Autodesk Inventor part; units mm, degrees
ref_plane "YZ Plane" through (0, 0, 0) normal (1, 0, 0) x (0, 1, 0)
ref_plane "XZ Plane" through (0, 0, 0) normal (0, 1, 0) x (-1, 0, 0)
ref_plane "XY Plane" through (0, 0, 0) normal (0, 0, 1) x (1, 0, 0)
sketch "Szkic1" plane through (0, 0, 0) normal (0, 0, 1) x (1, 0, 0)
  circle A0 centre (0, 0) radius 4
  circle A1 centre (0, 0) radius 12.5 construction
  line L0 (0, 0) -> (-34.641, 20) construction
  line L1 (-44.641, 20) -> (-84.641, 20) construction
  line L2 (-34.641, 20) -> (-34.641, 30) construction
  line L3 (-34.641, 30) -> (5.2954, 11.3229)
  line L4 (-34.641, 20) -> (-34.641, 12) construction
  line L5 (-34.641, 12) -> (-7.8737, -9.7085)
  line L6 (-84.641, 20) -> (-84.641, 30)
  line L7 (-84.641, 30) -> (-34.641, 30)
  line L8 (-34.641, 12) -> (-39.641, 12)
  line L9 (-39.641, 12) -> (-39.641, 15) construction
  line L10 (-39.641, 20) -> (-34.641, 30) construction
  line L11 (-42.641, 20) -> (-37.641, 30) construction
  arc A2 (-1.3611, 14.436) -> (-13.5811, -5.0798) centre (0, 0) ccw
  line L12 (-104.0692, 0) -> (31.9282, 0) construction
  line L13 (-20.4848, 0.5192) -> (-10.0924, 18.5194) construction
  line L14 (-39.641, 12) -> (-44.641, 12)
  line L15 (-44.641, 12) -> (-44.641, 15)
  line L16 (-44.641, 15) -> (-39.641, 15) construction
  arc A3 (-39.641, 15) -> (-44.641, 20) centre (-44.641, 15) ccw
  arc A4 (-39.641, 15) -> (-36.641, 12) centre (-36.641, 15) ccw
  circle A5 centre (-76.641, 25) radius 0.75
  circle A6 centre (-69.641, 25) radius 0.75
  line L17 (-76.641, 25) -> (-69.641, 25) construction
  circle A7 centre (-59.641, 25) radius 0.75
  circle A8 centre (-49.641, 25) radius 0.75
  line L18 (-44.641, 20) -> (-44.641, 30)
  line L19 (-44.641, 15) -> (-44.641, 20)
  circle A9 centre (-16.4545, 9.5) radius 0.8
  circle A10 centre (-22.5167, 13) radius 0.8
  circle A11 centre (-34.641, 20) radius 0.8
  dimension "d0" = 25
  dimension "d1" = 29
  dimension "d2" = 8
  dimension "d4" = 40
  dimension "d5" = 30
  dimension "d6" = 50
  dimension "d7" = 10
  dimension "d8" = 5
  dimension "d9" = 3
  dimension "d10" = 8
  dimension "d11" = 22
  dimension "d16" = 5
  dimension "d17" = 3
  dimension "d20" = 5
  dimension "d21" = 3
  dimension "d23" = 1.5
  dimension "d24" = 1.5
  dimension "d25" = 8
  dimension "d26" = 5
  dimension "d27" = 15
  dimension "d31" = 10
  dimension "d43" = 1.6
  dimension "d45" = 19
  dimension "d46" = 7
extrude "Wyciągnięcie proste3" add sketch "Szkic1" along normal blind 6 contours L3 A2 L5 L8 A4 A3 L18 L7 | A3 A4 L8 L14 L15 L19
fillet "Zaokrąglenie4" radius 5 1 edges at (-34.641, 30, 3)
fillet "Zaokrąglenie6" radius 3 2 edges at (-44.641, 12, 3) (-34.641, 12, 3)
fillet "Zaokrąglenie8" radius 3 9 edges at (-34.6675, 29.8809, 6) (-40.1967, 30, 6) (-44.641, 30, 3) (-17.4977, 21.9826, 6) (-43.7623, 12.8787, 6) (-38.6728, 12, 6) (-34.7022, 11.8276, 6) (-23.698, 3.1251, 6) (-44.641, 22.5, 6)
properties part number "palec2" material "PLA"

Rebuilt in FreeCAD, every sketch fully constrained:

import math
import FreeCAD as App
import Part
import Sketcher

V = App.Vector
Q = App.Units.Quantity


def edges_at(feature, points):
    """Names of the edges that pass closest to the given points."""
    edges = feature.Shape.Edges
    near = lambda p: min(range(len(edges)), key=lambda i: edges[i].distToShape(Part.Vertex(*p))[0])
    return sorted({f"Edge{near(p) + 1}" for p in points})

doc = App.newDocument("Part")
params = doc.addObject("Spreadsheet::Sheet", "Params")
for row, (alias, value) in enumerate([
    ("sketch1_diameter", "1.6 mm"),
    ("sketch1_radius", "14.5 mm"),
    ("sketch1_width", "10 mm"),
    ("pad1_length", "6 mm"),
    ("fillet_radius", "5 mm"),
    ("fillet2_radius", "3 mm"),
    ("fillet3_radius", "3 mm"),
], start=1):
    params.set(f"A{row}", alias)
    params.set(f"B{row}", "=" + value)
    params.setAlias(f"B{row}", alias)

body = doc.addObject("PartDesign::Body", "Body")

sketch1 = body.newObject("Sketcher::SketchObject", "Sketch")
sketch1.AttachmentSupport = (doc.getObject("XY_Plane"), [""])
sketch1.MapMode = "FlatFace"
sketch1.addGeometry(Part.LineSegment(V(-1.4, 14.4, 0), V(-34.6, 30, 0)), False)
sketch1.addGeometry(Part.LineSegment(V(-34.6, 30, 0), V(-44.6, 30, 0)), False)
sketch1.addGeometry(Part.LineSegment(V(-44.6, 30, 0), V(-44.6, 12, 0)), False)
sketch1.addGeometry(Part.LineSegment(V(-44.6, 12, 0), V(-34.6, 12, 0)), False)
sketch1.addGeometry(Part.LineSegment(V(-34.6, 12, 0), V(-13.6, -5.1, 0)), False)
sketch1.addGeometry(Part.ArcOfCircle(Part.Circle(V(0, 0, 0), V(0, 0, 1), 14.5), math.radians(95), math.radians(201)), False)
sketch1.addGeometry(Part.Circle(V(-16.5, 9.5, 0), V(0, 0, 1), 0.8), False)
sketch1.addGeometry(Part.Circle(V(-22.5, 13, 0), V(0, 0, 1), 0.8), False)
sketch1.addGeometry(Part.Circle(V(-34.6, 20, 0), V(0, 0, 1), 0.8), False)
sketch1.addConstraint(Sketcher.Constraint("Coincident", 0, 2, 1, 1))
sketch1.addConstraint(Sketcher.Constraint("Coincident", 1, 2, 2, 1))
sketch1.addConstraint(Sketcher.Constraint("Coincident", 2, 2, 3, 1))
sketch1.addConstraint(Sketcher.Constraint("Coincident", 3, 2, 4, 1))
sketch1.addConstraint(Sketcher.Constraint("Coincident", 4, 2, 5, 2))
sketch1.addConstraint(Sketcher.Constraint("Coincident", 5, 1, 0, 1))
sketch1.addConstraint(Sketcher.Constraint("Horizontal", 1))
sketch1.addConstraint(Sketcher.Constraint("Vertical", 2))
sketch1.addConstraint(Sketcher.Constraint("Horizontal", 3))
sketch1.addConstraint(Sketcher.Constraint("Coincident", 5, 3, -1, 1))
sketch1.addConstraint(Sketcher.Constraint("Equal", 6, 7))
sketch1.addConstraint(Sketcher.Constraint("Equal", 7, 8))
sketch1.addConstraint(Sketcher.Constraint("Vertical", 8, 3, 0, 2))
sketch1.addConstraint(Sketcher.Constraint("Vertical", 0, 2, 3, 2))
sketch1.addConstraint(Sketcher.Constraint("Diameter", 6, Q("1.6 mm")))
sketch1.addConstraint(Sketcher.Constraint("Radius", 5, Q("14.5 mm")))
sketch1.addConstraint(Sketcher.Constraint("DistanceX", 1, 2, 1, 1, Q("10 mm")))
sketch1.addConstraint(Sketcher.Constraint("DistanceY", -1, 1, 0, 2, Q("30 mm")))
sketch1.addConstraint(Sketcher.Constraint("DistanceY", 7, 3, 8, 3, Q("7 mm")))
sketch1.addConstraint(Sketcher.Constraint("DistanceY", 8, 3, 0, 2, Q("10 mm")))
sketch1.addConstraint(Sketcher.Constraint("DistanceY", 2, 2, 8, 3, Q("8 mm")))
sketch1.addConstraint(Sketcher.Constraint("DistanceY", -1, 1, 6, 3, Q("9.5 mm")))
sketch1.addConstraint(Sketcher.Constraint("DistanceX", 3, 2, 4, 2, Q("21.06 mm")))
sketch1.addConstraint(Sketcher.Constraint("DistanceX", 4, 2, 5, 1, Q("12.22 mm")))
sketch1.addConstraint(Sketcher.Constraint("DistanceX", 8, 3, -1, 1, Q("34.641 mm")))
sketch1.addConstraint(Sketcher.Constraint("DistanceX", 6, 3, -1, 1, Q("16.4545 mm")))
sketch1.addConstraint(Sketcher.Constraint("DistanceX", 7, 3, -1, 1, Q("22.5167 mm")))
sketch1.setExpression("Constraints[14]", "Params.sketch1_diameter")
sketch1.setExpression("Constraints[15]", "Params.sketch1_radius")
sketch1.setExpression("Constraints[16]", "Params.sketch1_width")
pad1 = body.newObject("PartDesign::Pad", "Pad")
pad1.Profile = sketch1
pad1.setExpression("Length", "Params.pad1_length")
doc.recompute()

fillet = body.newObject("PartDesign::Fillet", "Fillet")
fillet.Base = (pad1, edges_at(pad1, [(-34.641, 30, 3)]))
fillet.setExpression("Radius", "Params.fillet_radius")
doc.recompute()

fillet2 = body.newObject("PartDesign::Fillet", "Fillet001")
fillet2.Base = (fillet, edges_at(fillet, [(-44.641, 12, 3), (-34.641, 12, 3)]))
fillet2.setExpression("Radius", "Params.fillet2_radius")
doc.recompute()

fillet3 = body.newObject("PartDesign::Fillet", "Fillet002")
fillet3.Base = (fillet2, edges_at(fillet2, [
    (-34.667, 29.881, 6),
    (-40.197, 30, 6),
    (-44.641, 30, 3),
    (-17.498, 21.983, 6),
    (-43.762, 12.879, 6),
    (-38.673, 12, 6),
    (-34.702, 11.828, 6),
    (-23.698, 3.125, 6),
    (-44.641, 22.5, 6),
]))
fillet3.setExpression("Radius", "Params.fillet3_radius")

doc.recompute()
